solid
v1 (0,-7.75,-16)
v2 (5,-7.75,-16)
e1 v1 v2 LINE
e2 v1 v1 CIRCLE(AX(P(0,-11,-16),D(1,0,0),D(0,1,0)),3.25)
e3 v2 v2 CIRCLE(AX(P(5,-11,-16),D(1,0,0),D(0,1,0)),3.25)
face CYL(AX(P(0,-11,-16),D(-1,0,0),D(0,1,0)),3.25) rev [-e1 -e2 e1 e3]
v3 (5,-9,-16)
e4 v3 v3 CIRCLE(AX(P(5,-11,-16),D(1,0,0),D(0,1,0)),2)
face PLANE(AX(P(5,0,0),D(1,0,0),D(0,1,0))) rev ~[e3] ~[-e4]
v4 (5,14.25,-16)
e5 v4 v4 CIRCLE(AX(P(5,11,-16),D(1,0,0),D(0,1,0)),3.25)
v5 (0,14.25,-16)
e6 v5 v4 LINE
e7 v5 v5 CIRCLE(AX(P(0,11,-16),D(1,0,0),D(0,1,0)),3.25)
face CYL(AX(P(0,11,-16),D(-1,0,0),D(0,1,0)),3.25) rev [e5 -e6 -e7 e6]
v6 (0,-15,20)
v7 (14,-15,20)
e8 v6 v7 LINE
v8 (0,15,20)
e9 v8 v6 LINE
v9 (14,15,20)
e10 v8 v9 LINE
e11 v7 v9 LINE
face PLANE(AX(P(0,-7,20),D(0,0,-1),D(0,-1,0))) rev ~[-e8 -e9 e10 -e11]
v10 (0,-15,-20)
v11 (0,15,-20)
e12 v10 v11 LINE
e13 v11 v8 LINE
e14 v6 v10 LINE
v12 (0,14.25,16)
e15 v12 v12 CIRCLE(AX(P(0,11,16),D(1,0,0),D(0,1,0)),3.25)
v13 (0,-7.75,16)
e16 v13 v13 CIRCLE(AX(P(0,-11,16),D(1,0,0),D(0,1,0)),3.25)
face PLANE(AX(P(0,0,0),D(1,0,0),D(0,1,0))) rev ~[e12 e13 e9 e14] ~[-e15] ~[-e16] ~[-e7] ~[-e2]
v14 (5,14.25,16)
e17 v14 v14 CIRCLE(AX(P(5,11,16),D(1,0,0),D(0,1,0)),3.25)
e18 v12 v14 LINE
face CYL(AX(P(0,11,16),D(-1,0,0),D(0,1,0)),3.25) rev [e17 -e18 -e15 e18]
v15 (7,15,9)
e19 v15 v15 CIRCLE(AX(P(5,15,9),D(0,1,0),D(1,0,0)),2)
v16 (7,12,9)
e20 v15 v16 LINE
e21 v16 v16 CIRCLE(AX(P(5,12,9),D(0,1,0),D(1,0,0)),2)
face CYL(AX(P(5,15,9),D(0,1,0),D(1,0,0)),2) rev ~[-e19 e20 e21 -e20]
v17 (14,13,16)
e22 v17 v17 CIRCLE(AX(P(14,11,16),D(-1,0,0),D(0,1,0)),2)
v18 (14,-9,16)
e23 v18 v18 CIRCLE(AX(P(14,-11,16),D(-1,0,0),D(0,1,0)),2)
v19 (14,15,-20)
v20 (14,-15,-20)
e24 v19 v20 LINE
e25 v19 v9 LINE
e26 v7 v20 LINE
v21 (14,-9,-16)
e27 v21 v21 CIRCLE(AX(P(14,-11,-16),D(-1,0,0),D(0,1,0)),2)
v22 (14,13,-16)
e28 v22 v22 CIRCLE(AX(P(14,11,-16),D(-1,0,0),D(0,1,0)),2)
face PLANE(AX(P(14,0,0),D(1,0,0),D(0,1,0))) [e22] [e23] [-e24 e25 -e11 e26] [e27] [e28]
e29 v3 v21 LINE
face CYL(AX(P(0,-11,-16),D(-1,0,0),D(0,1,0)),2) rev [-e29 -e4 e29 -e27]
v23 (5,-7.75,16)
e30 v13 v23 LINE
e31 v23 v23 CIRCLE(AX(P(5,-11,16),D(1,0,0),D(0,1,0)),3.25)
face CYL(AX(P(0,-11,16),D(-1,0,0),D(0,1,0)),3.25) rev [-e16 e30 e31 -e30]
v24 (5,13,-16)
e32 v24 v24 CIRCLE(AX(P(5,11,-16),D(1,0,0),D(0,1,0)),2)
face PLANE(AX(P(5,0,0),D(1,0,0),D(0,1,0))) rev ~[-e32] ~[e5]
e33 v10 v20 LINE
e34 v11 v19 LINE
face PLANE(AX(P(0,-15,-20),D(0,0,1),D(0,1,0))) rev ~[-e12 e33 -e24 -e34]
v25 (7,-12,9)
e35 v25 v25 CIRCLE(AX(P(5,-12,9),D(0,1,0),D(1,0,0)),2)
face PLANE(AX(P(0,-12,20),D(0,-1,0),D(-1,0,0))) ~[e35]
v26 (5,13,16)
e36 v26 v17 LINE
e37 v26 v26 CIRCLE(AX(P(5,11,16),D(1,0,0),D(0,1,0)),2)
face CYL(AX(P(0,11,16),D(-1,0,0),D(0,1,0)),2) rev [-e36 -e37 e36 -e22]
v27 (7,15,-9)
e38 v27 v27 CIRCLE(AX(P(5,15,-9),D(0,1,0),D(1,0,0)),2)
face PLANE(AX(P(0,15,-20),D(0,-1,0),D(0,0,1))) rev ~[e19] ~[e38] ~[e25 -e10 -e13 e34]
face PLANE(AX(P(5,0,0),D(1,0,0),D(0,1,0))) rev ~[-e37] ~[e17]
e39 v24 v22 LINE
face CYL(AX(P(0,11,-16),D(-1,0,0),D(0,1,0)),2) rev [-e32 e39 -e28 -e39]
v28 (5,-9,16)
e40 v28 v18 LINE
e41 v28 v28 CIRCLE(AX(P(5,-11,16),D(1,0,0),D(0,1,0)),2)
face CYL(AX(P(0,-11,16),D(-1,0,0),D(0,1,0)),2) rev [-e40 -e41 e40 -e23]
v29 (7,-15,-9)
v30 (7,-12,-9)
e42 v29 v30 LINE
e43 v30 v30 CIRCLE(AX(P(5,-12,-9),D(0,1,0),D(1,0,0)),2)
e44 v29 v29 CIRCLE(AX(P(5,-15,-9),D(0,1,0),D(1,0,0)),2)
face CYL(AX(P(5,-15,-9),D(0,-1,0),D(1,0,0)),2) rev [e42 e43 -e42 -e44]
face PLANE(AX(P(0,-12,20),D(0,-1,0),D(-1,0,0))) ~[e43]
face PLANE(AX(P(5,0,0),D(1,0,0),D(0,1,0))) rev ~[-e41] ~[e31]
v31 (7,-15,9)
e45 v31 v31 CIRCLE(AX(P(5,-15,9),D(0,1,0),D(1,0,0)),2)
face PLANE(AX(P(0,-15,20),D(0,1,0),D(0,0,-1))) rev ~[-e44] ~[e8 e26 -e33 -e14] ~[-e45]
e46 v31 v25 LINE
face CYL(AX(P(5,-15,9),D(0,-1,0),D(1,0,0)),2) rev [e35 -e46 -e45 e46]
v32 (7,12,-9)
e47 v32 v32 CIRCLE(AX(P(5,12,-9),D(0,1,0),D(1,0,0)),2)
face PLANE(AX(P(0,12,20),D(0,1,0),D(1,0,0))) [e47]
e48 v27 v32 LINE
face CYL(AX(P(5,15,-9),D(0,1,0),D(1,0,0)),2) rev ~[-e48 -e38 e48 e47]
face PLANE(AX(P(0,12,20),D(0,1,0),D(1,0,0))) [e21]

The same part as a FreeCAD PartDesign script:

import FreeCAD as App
import Part
import Sketcher
from FreeCAD import Vector
Q = App.Units.Quantity

doc = App.newDocument("Part")
body = doc.addObject("PartDesign::Body", "Body")

sketch1 = body.newObject("Sketcher::SketchObject", "Sketch")
sketch1.AttachmentSupport = (doc.getObject("YZ_Plane"), [""])
sketch1.MapMode = "FlatFace"
sketch1.addGeometry(Part.LineSegment(Vector(-15, 20, 0), Vector(-15, -20, 0)), False)
sketch1.addGeometry(Part.LineSegment(Vector(-15, -20, 0), Vector(15, -20, 0)), False)
sketch1.addGeometry(Part.LineSegment(Vector(15, -20, 0), Vector(15, 20, 0)), False)
sketch1.addGeometry(Part.LineSegment(Vector(15, 20, 0), Vector(-15, 20, 0)), False)
sketch1.addConstraint(Sketcher.Constraint("Coincident", 0, 2, 1, 1))
sketch1.addConstraint(Sketcher.Constraint("Coincident", 1, 2, 2, 1))
sketch1.addConstraint(Sketcher.Constraint("Coincident", 2, 2, 3, 1))
sketch1.addConstraint(Sketcher.Constraint("Coincident", 3, 2, 0, 1))
sketch1.addConstraint(Sketcher.Constraint("Vertical", 0))
sketch1.addConstraint(Sketcher.Constraint("Horizontal", 1))
sketch1.addConstraint(Sketcher.Constraint("Vertical", 2))
sketch1.addConstraint(Sketcher.Constraint("Horizontal", 3))
sketch1.addConstraint(Sketcher.Constraint("Symmetric", 0, 2, 2, 2, -1, 1))
sketch1.addConstraint(Sketcher.Constraint("DistanceX", 1, 1, 1, 2, Q("30 mm")))
sketch1.addConstraint(Sketcher.Constraint("DistanceY", 0, 2, 0, 1, Q("40 mm")))
pad1 = body.newObject("PartDesign::Pad", "Pad")
pad1.Profile = sketch1
pad1.Length = 14

sketch2 = body.newObject("Sketcher::SketchObject", "Sketch001")
sketch2.AttachmentSupport = (doc.getObject("XZ_Plane"), [""])
sketch2.MapMode = "FlatFace"
sketch2.AttachmentOffset = App.Placement(Vector(0, 0, -15), App.Rotation())
sketch2.addGeometry(Part.Circle(Vector(5, 9, 0), Vector(0, 0, 1), 2), False)
sketch2.addGeometry(Part.Circle(Vector(5, -9, 0), Vector(0, 0, 1), 2), False)
sketch2.addConstraint(Sketcher.Constraint("Equal", 0, 1))
sketch2.addConstraint(Sketcher.Constraint("Symmetric", 0, 3, 1, 3, -1))
sketch2.addConstraint(Sketcher.Constraint("Diameter", 0, Q("4 mm")))
sketch2.addConstraint(Sketcher.Constraint("DistanceX", -1, 1, 0, 3, Q("5 mm")))
sketch2.addConstraint(Sketcher.Constraint("DistanceY", 1, 3, 0, 3, Q("18 mm")))
pocket1 = body.newObject("PartDesign::Pocket", "Pocket")
pocket1.Profile = sketch2
pocket1.Length = 3
pocket1.Reversed = True
doc.recompute()

mirrored = body.newObject("PartDesign::Mirrored", "Mirrored")
mirrored.Originals = [pocket1]
mirrored.MirrorPlane = (doc.getObject("XZ_Plane"), [""])
body.Tip = mirrored

sketch3 = body.newObject("Sketcher::SketchObject", "Sketch002")
sketch3.AttachmentSupport = (doc.getObject("YZ_Plane"), [""])
sketch3.MapMode = "FlatFace"
sketch3.addGeometry(Part.Circle(Vector(11, 16, 0), Vector(0, 0, 1), 2), False)
sketch3.addGeometry(Part.Circle(Vector(11, -16, 0), Vector(0, 0, 1), 2), False)
sketch3.addGeometry(Part.Circle(Vector(-11, 16, 0), Vector(0, 0, 1), 2), False)
sketch3.addGeometry(Part.Circle(Vector(-11, -16, 0), Vector(0, 0, 1), 2), False)
sketch3.addConstraint(Sketcher.Constraint("Equal", 0, 1))
sketch3.addConstraint(Sketcher.Constraint("Equal", 1, 2))
sketch3.addConstraint(Sketcher.Constraint("Equal", 2, 3))
sketch3.addConstraint(Sketcher.Constraint("Symmetric", 1, 3, 2, 3, -1, 1))
sketch3.addConstraint(Sketcher.Constraint("Symmetric", 0, 3, 3, 3, -1, 1))
sketch3.addConstraint(Sketcher.Constraint("Symmetric", 0, 3, 2, 3, -2))
sketch3.addConstraint(Sketcher.Constraint("Diameter", 0, Q("4 mm")))
sketch3.addConstraint(Sketcher.Constraint("DistanceX", -1, 1, 0, 3, Q("11 mm")))
sketch3.addConstraint(Sketcher.Constraint("DistanceY", -1, 1, 0, 3, Q("16 mm")))
pocket2 = body.newObject("PartDesign::Pocket", "Pocket001")
pocket2.Profile = sketch3
pocket2.Type = "ThroughAll"
pocket2.Reversed = True

sketch4 = body.newObject("Sketcher::SketchObject", "Sketch003")
sketch4.AttachmentSupport = (doc.getObject("YZ_Plane"), [""])
sketch4.MapMode = "FlatFace"
sketch4.addGeometry(Part.Circle(Vector(11, -16, 0), Vector(0, 0, 1), 3.2), False)
sketch4.addGeometry(Part.Circle(Vector(11, -16, 0), Vector(0, 0, 1), 2), False)
sketch4.addGeometry(Part.Circle(Vector(11, 16, 0), Vector(0, 0, 1), 3.2), False)
sketch4.addGeometry(Part.Circle(Vector(11, 16, 0), Vector(0, 0, 1), 2), False)
sketch4.addGeometry(Part.Circle(Vector(-11, 16, 0), Vector(0, 0, 1), 3.2), False)
sketch4.addGeometry(Part.Circle(Vector(-11, 16, 0), Vector(0, 0, 1), 2), False)
sketch4.addGeometry(Part.Circle(Vector(-11, -16, 0), Vector(0, 0, 1), 3.2), False)
sketch4.addGeometry(Part.Circle(Vector(-11, -16, 0), Vector(0, 0, 1), 2), False)
sketch4.addConstraint(Sketcher.Constraint("Coincident", 1, 3, 0, 3))
sketch4.addConstraint(Sketcher.Constraint("Coincident", 3, 3, 2, 3))
sketch4.addConstraint(Sketcher.Constraint("Coincident", 5, 3, 4, 3))
sketch4.addConstraint(Sketcher.Constraint("Coincident", 7, 3, 6, 3))
sketch4.addConstraint(Sketcher.Constraint("Equal", 0, 2))
sketch4.addConstraint(Sketcher.Constraint("Equal", 1, 3))
sketch4.addConstraint(Sketcher.Constraint("Equal", 2, 4))
sketch4.addConstraint(Sketcher.Constraint("Equal", 3, 5))
sketch4.addConstraint(Sketcher.Constraint("Equal", 4, 6))
sketch4.addConstraint(Sketcher.Constraint("Equal", 5, 7))
sketch4.addConstraint(Sketcher.Constraint("Symmetric", 0, 3, 4, 3, -1, 1))
sketch4.addConstraint(Sketcher.Constraint("Symmetric", 2, 3, 6, 3, -1, 1))
sketch4.addConstraint(Sketcher.Constraint("Symmetric", 2, 3, 4, 3, -2))
sketch4.addConstraint(Sketcher.Constraint("Diameter", 1, Q("4 mm")))
sketch4.addConstraint(Sketcher.Constraint("Diameter", 0, Q("6.5 mm")))
sketch4.addConstraint(Sketcher.Constraint("DistanceX", -1, 1, 0, 3, Q("11 mm")))
sketch4.addConstraint(Sketcher.Constraint("DistanceY", 0, 3, -1, 1, Q("16 mm")))
pocket3 = body.newObject("PartDesign::Pocket", "Pocket002")
pocket3.Profile = sketch4
pocket3.Length = 5
pocket3.Reversed = True

doc.recompute()
